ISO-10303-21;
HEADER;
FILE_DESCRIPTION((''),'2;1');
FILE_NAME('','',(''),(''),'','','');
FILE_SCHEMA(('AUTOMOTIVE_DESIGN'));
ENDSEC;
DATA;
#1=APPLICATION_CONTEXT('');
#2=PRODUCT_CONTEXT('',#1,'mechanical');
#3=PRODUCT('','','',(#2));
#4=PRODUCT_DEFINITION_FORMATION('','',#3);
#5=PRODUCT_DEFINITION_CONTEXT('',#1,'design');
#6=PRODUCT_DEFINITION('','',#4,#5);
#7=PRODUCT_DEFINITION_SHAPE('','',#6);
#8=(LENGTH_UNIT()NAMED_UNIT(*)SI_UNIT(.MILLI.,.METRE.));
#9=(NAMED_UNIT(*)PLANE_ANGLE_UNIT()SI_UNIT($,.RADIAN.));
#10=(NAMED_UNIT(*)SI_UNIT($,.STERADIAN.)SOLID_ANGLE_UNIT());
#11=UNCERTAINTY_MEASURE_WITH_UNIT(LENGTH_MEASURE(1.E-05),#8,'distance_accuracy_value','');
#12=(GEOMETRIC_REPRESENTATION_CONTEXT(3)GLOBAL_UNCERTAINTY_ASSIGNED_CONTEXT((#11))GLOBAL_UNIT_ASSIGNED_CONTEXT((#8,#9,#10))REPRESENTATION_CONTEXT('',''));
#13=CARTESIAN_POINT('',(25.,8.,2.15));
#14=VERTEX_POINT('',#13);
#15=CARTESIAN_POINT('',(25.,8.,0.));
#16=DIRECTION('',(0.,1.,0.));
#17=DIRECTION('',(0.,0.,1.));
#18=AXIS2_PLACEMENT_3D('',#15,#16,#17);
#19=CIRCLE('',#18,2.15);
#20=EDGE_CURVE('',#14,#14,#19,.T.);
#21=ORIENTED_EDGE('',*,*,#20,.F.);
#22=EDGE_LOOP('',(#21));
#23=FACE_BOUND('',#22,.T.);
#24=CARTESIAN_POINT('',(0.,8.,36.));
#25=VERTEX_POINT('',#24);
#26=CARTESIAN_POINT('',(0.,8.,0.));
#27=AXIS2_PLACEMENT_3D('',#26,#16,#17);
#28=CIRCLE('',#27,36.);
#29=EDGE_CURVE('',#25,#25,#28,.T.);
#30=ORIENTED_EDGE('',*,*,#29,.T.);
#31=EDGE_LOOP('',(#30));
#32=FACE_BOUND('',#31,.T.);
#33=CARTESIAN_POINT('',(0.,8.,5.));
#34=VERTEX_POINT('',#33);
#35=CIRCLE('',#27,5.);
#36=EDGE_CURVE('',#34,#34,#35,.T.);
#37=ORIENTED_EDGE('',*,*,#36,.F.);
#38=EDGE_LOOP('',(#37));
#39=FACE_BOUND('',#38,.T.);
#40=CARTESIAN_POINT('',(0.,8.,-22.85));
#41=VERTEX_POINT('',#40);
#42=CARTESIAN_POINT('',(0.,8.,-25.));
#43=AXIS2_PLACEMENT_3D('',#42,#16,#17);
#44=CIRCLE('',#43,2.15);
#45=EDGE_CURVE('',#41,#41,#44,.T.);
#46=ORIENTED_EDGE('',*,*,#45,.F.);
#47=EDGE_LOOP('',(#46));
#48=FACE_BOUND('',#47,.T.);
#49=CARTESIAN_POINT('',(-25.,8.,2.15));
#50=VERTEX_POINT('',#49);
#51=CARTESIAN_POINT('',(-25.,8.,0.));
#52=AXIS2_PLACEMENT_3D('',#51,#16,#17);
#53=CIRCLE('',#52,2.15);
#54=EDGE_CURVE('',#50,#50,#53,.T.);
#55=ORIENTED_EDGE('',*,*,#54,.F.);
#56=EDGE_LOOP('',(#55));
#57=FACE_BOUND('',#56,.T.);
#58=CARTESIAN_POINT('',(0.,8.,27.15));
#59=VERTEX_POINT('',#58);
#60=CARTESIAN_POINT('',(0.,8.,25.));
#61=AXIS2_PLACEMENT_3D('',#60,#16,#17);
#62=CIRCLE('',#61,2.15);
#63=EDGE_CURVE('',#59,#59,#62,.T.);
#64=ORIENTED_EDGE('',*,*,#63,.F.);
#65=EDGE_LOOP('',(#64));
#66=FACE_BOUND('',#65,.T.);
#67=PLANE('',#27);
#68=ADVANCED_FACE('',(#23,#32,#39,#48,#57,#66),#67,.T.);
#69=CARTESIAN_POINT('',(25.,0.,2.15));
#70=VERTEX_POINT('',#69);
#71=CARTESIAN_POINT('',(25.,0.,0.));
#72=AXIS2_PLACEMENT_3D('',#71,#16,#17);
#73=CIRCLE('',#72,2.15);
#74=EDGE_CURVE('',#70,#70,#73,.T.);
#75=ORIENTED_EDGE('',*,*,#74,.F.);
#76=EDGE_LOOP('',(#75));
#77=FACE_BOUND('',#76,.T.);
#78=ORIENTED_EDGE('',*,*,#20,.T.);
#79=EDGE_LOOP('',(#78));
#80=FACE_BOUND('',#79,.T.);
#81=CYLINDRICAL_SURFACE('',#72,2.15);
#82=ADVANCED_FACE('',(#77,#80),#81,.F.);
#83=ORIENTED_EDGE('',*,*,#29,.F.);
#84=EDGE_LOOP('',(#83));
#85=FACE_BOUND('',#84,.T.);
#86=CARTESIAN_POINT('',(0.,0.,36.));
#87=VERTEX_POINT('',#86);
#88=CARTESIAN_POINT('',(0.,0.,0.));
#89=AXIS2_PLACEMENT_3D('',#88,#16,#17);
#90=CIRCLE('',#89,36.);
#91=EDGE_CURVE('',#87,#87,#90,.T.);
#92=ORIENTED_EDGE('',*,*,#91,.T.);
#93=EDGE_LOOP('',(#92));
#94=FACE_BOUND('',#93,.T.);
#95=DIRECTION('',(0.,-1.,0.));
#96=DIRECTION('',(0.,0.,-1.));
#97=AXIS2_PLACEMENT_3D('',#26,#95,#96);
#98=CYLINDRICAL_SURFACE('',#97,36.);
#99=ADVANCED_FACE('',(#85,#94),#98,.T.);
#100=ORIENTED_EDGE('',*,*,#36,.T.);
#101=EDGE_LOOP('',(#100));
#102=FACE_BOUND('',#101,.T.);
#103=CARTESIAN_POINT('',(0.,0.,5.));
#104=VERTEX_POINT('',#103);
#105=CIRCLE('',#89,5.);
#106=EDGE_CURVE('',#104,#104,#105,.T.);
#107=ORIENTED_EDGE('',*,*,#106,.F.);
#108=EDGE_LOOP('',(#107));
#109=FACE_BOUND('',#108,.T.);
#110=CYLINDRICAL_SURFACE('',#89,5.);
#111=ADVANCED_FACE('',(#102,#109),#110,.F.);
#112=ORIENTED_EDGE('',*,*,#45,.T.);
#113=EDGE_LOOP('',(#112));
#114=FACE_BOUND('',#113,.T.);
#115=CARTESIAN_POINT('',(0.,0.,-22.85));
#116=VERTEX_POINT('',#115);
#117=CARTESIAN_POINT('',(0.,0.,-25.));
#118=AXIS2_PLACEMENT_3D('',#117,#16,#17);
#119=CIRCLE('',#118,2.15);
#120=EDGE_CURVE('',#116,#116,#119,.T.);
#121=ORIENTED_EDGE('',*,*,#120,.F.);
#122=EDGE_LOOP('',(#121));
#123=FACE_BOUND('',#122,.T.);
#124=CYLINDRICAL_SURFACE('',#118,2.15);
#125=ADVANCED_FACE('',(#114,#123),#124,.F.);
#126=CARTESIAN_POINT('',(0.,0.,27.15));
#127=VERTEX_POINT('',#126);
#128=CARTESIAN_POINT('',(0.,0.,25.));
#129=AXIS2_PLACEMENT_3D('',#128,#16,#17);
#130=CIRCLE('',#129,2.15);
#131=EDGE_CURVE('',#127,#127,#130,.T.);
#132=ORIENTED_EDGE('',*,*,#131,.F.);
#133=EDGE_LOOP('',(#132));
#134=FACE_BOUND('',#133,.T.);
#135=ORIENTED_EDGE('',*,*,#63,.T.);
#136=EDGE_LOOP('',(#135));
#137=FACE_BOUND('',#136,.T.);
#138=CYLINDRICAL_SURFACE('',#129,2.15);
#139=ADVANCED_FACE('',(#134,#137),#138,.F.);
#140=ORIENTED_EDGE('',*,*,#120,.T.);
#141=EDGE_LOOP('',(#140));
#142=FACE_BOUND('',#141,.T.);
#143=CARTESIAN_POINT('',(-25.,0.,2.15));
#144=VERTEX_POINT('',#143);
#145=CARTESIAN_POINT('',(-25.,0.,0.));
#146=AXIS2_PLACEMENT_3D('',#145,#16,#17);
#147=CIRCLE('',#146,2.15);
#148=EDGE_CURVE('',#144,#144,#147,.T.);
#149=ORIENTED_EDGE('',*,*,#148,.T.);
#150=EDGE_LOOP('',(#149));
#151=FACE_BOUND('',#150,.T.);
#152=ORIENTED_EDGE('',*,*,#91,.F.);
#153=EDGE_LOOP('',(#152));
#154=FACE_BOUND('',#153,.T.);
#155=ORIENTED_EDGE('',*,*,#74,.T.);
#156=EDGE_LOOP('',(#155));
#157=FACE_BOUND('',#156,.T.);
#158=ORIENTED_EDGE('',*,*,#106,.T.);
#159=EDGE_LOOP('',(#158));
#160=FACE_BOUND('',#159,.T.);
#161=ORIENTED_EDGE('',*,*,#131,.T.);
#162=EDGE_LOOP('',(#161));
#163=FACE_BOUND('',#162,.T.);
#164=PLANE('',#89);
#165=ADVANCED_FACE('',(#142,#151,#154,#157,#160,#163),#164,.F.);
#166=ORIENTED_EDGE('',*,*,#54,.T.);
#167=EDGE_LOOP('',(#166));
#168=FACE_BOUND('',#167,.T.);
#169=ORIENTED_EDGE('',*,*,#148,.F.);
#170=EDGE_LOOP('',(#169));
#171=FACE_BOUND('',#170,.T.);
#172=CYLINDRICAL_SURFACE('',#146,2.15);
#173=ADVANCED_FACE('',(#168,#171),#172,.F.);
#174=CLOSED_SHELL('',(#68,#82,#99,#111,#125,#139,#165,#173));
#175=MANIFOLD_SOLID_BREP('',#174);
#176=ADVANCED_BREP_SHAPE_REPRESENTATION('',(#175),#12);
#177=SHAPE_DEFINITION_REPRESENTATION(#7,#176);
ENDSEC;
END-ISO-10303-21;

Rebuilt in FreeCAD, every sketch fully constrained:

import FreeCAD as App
import Part
import Sketcher

doc = App.newDocument("Part")
params = doc.addObject("Spreadsheet::Sheet", "Params")
for row, (alias, value) in enumerate([
    ("sketch1_diameter", "72 mm"),
    ("pad1_length", "8 mm"),
    ("sketch2_diameter", "10 mm"),
    ("sketch2_diameter2", "4.3 mm"),
    ("pocket1_length", "8 mm"),
], start=1):
    params.set(f"A{row}", alias)
    params.set(f"B{row}", "=" + value)
    params.setAlias(f"B{row}", alias)

body = doc.addObject("PartDesign::Body", "Body")

sketch1 = doc.addObject("Sketcher::SketchObject", "Sketch")
body.addObject(sketch1)
sketch1.AttachmentSupport = (doc.XZ_Plane, [""])
sketch1.MapMode = "FlatFace"
sketch1.addGeometry(Part.Circle(App.Vector(0, 0, 0), App.Vector(0, 0, 1), 36), False)
sketch1.addConstraint([
    Sketcher.Constraint("Coincident", 0, 3, -1, 1),
    Sketcher.Constraint("Diameter", 0, 72.0),
])
sketch1.setExpression("Constraints[1]", "Params.sketch1_diameter")
pad1 = doc.addObject("PartDesign::Pad", "Pad")
body.addObject(pad1)
pad1.Profile = sketch1
pad1.setExpression("Length", "Params.pad1_length")
pad1.Reversed = True

sketch2 = doc.addObject("Sketcher::SketchObject", "Sketch001")
body.addObject(sketch2)
sketch2.AttachmentSupport = (doc.XZ_Plane, [""])
sketch2.MapMode = "FlatFace"
sketch2.AttachmentOffset = App.Placement(App.Vector(0, 0, -8), App.Rotation())
sketch2.addGeometry([
    Part.Circle(App.Vector(0, -25, 0), App.Vector(0, 0, 1), 2.1),
    Part.Circle(App.Vector(25, 0, 0), App.Vector(0, 0, 1), 2.1),
    Part.Circle(App.Vector(0, 25, 0), App.Vector(0, 0, 1), 2.1),
    Part.Circle(App.Vector(-25, 0, 0), App.Vector(0, 0, 1), 2.1),
    Part.Circle(App.Vector(0, 0, 0), App.Vector(0, 0, 1), 5),
], False)
sketch2.addConstraint([
    Sketcher.Constraint("Coincident", 4, 3, -1, 1),
    Sketcher.Constraint("Equal", 0, 1),
    Sketcher.Constraint("Equal", 1, 2),
    Sketcher.Constraint("Equal", 2, 3),
    Sketcher.Constraint("Symmetric", 0, 3, 2, 3, -1, 1),
    Sketcher.Constraint("Symmetric", 1, 3, 3, 3, -1, 1),
    Sketcher.Constraint("PointOnObject", 0, 3, -2),
    Sketcher.Constraint("PointOnObject", 1, 3, -1),
    Sketcher.Constraint("Diameter", 4, 10.0),
    Sketcher.Constraint("Diameter", 0, 4.3),
    Sketcher.Constraint("DistanceY", 0, 3, -1, 1, 25.0),
    Sketcher.Constraint("DistanceX", -1, 1, 1, 3, 25.0),
])
sketch2.setExpression("Constraints[8]", "Params.sketch2_diameter")
sketch2.setExpression("Constraints[9]", "Params.sketch2_diameter2")
pocket1 = doc.addObject("PartDesign::Pocket", "Pocket")
body.addObject(pocket1)
pocket1.Profile = sketch2
pocket1.setExpression("Length", "Params.pocket1_length")
pocket1.Reversed = True

doc.recompute()
